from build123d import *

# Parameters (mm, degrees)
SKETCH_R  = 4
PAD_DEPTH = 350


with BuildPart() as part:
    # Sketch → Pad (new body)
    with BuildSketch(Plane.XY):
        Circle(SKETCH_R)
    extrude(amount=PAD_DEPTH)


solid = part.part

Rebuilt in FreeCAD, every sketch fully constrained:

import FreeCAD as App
import Part
import Sketcher

doc = App.newDocument("Part")
params = doc.addObject("Spreadsheet::Sheet", "Params")
for row, (alias, value) in enumerate([
    ("sketch1_diameter", "8 mm"),
    ("pad1_length", "350 mm"),
], start=1):
    params.set(f"A{row}", alias)
    params.set(f"B{row}", "=" + value)
    params.setAlias(f"B{row}", alias)

body = doc.addObject("PartDesign::Body", "Body")

# Sketch on XY plane
sketch1 = body.newObject("Sketcher::SketchObject", "Sketch")
sketch1.AttachmentSupport = (doc.getObject("XY_Plane"), [""])
sketch1.MapMode = "FlatFace"
sketch1.addGeometry(Part.Circle(App.Vector(0, 0, 0), App.Vector(0, 0, 1), 4), False)
sketch1.addConstraint(Sketcher.Constraint("Coincident", 0, 3, -1, 1))
sketch1.addConstraint(Sketcher.Constraint("Diameter", 0, 8.0))
sketch1.setExpression("Constraints[1]", "Params.sketch1_diameter")
pad1 = body.newObject("PartDesign::Pad", "Pad")
pad1.Profile = sketch1
pad1.setExpression("Length", "Params.pad1_length")

doc.recompute()
